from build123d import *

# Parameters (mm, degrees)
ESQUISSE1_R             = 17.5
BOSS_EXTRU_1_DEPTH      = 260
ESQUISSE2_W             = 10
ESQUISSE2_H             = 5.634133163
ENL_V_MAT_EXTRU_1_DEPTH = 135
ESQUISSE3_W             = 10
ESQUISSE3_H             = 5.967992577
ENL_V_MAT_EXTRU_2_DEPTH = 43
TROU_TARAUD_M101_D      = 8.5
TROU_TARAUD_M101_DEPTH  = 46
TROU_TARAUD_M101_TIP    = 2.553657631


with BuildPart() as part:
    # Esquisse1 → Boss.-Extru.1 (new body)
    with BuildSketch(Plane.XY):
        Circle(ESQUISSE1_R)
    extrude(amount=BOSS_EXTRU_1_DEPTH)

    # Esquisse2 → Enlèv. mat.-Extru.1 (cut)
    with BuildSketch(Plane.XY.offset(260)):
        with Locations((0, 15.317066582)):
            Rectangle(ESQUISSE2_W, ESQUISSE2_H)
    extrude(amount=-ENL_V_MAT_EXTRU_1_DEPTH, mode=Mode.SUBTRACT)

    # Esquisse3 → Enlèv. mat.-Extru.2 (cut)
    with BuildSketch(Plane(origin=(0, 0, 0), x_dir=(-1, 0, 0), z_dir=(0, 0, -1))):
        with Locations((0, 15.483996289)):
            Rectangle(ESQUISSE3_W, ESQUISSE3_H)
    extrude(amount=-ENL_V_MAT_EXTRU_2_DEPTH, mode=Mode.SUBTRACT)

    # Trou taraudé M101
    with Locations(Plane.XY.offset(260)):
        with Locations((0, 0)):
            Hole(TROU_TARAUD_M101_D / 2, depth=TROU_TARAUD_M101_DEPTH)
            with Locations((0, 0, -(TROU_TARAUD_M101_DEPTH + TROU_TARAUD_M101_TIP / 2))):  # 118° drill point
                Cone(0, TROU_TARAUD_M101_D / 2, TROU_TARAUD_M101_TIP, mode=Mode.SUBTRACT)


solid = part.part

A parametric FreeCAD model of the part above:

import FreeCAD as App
import Part
import Sketcher

doc = App.newDocument("Part")
body = doc.addObject("PartDesign::Body", "Body")

sketch1 = body.newObject("Sketcher::SketchObject", "Sketch")
sketch1.AttachmentSupport = (doc.getObject("XY_Plane"), [""])
sketch1.MapMode = "FlatFace"
sketch1.addGeometry(Part.Circle(App.Vector(0, 0, 0), App.Vector(0, 0, 1), 18), False)
sketch1.addConstraint([
    Sketcher.Constraint("Coincident", 0, 3, -1, 1),
    Sketcher.Constraint("Diameter", 0, 35.0),
])
pad1 = body.newObject("PartDesign::Pad", "Pad")
pad1.Profile = sketch1
pad1.Length = 260

sketch2 = body.newObject("Sketcher::SketchObject", "Sketch001")
sketch2.AttachmentSupport = (doc.getObject("XY_Plane"), [""])
sketch2.MapMode = "FlatFace"
sketch2.AttachmentOffset = App.Placement(App.Vector(0, 0, 260), App.Rotation())
sketch2.addGeometry([
    Part.LineSegment(App.Vector(-5, 18, 0), App.Vector(-5, 13, 0)),
    Part.LineSegment(App.Vector(-5, 13, 0), App.Vector(5, 13, 0)),
    Part.LineSegment(App.Vector(5, 13, 0), App.Vector(5, 18, 0)),
    Part.LineSegment(App.Vector(5, 18, 0), App.Vector(-5, 18, 0)),
], False)
sketch2.addConstraint([
    Sketcher.Constraint("Coincident", 0, 2, 1, 1),
    Sketcher.Constraint("Coincident", 1, 2, 2, 1),
    Sketcher.Constraint("Coincident", 2, 2, 3, 1),
    Sketcher.Constraint("Coincident", 3, 2, 0, 1),
    Sketcher.Constraint("Vertical", 0),
    Sketcher.Constraint("Horizontal", 1),
    Sketcher.Constraint("Vertical", 2),
    Sketcher.Constraint("Horizontal", 3),
    Sketcher.Constraint("DistanceX", 1, 1, 1, 2, 10.0),
    Sketcher.Constraint("DistanceX", 0, 2, -1, 1, 5.0),
    Sketcher.Constraint("DistanceY", -1, 1, 0, 2, 12.5),
    Sketcher.Constraint("DistanceY", 0, 2, 0, 1, 5.634133),
])
pocket1 = body.newObject("PartDesign::Pocket", "Pocket")
pocket1.Profile = sketch2
pocket1.Length = 135

sketch3 = body.newObject("Sketcher::SketchObject", "Sketch002")
sketch3.AttachmentSupport = (doc.getObject("XY_Plane"), [""])
sketch3.MapMode = "FlatFace"
sketch3.addGeometry([
    Part.LineSegment(App.Vector(5, 18, 0), App.Vector(5, 13, 0)),
    Part.LineSegment(App.Vector(5, 13, 0), App.Vector(-5, 13, 0)),
    Part.LineSegment(App.Vector(-5, 13, 0), App.Vector(-5, 18, 0)),
    Part.LineSegment(App.Vector(-5, 18, 0), App.Vector(5, 18, 0)),
], False)
sketch3.addConstraint([
    Sketcher.Constraint("Coincident", 0, 2, 1, 1),
    Sketcher.Constraint("Coincident", 1, 2, 2, 1),
    Sketcher.Constraint("Coincident", 2, 2, 3, 1),
    Sketcher.Constraint("Coincident", 3, 2, 0, 1),
    Sketcher.Constraint("Vertical", 0),
    Sketcher.Constraint("Horizontal", 1),
    Sketcher.Constraint("Vertical", 2),
    Sketcher.Constraint("Horizontal", 3),
    Sketcher.Constraint("DistanceX", 1, 2, 1, 1, 10.0),
    Sketcher.Constraint("DistanceX", -1, 1, 0, 2, 5.0),
    Sketcher.Constraint("DistanceY", -1, 1, 0, 2, 12.5),
    Sketcher.Constraint("DistanceY", 0, 2, 0, 1, 5.967993),
])
pocket2 = body.newObject("PartDesign::Pocket", "Pocket001")
pocket2.Profile = sketch3
pocket2.Length = 43
pocket2.Reversed = True

sketch4 = body.newObject("Sketcher::SketchObject", "Sketch003")
sketch4.AttachmentSupport = (doc.getObject("XY_Plane"), [""])
sketch4.MapMode = "FlatFace"
sketch4.AttachmentOffset = App.Placement(App.Vector(0, 0, 260), App.Rotation())
sketch4.addGeometry(Part.Circle(App.Vector(0, 0, 0), App.Vector(0, 0, 1), 4.2), False)
sketch4.addConstraint([
    Sketcher.Constraint("Coincident", 0, 3, -1, 1),
    Sketcher.Constraint("Diameter", 0, 8.5),
])
doc.recompute()
hole = body.newObject("PartDesign::Hole", "Hole")
hole.Profile = sketch4
hole.ThreadType = "None"
hole.Diameter = 8.5
hole.DepthType = "Dimension"
hole.Depth = 46
hole.DrillPoint = "Angled"
hole.DrillPointAngle = 118

doc.recompute()
